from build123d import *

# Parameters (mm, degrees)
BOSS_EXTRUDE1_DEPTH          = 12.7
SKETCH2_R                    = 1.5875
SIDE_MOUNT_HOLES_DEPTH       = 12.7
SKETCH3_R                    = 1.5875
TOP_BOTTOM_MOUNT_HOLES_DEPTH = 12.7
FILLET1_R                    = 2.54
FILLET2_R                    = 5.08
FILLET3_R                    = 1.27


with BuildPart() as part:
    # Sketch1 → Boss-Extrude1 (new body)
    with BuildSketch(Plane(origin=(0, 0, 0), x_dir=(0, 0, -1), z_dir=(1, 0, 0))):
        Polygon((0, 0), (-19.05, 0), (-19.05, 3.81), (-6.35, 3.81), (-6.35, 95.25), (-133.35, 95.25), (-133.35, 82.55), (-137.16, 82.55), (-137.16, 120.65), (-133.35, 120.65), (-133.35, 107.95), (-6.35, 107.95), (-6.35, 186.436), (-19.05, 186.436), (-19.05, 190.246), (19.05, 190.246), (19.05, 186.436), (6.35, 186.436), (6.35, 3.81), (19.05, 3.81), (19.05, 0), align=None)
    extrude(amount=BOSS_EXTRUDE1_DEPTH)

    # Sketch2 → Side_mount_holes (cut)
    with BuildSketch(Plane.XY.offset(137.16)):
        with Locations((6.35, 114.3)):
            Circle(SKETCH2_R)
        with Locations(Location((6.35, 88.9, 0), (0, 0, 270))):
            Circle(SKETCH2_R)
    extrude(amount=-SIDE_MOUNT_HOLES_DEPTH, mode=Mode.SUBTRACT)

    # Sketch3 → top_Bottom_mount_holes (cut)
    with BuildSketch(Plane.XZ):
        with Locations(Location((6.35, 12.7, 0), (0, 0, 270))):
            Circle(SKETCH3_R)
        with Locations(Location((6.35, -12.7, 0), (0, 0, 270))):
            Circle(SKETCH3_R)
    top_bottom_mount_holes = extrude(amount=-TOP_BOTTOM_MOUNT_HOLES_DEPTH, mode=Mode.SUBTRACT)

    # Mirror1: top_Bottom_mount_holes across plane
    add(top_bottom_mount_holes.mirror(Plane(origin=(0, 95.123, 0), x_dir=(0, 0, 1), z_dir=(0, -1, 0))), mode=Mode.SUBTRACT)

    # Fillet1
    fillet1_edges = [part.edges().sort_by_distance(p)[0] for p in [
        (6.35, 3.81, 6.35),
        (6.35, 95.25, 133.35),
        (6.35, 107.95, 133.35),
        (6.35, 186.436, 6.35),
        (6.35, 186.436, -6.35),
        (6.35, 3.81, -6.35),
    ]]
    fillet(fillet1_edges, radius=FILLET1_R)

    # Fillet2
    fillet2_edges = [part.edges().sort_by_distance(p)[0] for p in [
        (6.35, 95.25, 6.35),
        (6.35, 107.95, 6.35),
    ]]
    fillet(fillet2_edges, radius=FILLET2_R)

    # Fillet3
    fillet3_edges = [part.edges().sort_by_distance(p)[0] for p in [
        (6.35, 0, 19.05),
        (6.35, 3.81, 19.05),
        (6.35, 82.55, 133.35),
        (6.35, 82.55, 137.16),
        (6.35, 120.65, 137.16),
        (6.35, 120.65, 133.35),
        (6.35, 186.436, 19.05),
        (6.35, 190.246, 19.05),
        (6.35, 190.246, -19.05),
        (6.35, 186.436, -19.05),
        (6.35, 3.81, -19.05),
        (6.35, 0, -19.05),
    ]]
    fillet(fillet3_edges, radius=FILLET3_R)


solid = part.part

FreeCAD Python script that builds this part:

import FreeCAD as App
import Part
import Sketcher
from FreeCAD import Vector
Q = App.Units.Quantity


def edges_at(feature, points):
    """Names of the edges that pass closest to the given points."""
    edges = feature.Shape.Edges
    near = lambda p: min(range(len(edges)), key=lambda i: edges[i].distToShape(Part.Vertex(*p))[0])
    return sorted({f"Edge{near(p) + 1}" for p in points})

doc = App.newDocument("Part")
body = doc.addObject("PartDesign::Body", "Body")

sketch1 = body.newObject("Sketcher::SketchObject", "Sketch")
sketch1.AttachmentSupport = (doc.getObject("YZ_Plane"), [""])
sketch1.MapMode = "FlatFace"
sketch1.addGeometry(Part.LineSegment(Vector(0, 19.05, 0), Vector(0, -19.05, 0)), False)
sketch1.addGeometry(Part.LineSegment(Vector(0, -19.05, 0), Vector(3.81, -19.05, 0)), False)
sketch1.addGeometry(Part.LineSegment(Vector(3.81, -19.05, 0), Vector(3.81, -6.35, 0)), False)
sketch1.addGeometry(Part.LineSegment(Vector(3.81, -6.35, 0), Vector(186.436, -6.35, 0)), False)
sketch1.addGeometry(Part.LineSegment(Vector(186.436, -6.35, 0), Vector(186.436, -19.05, 0)), False)
sketch1.addGeometry(Part.LineSegment(Vector(186.436, -19.05, 0), Vector(190.246, -19.05, 0)), False)
sketch1.addGeometry(Part.LineSegment(Vector(190.246, -19.05, 0), Vector(190.246, 19.05, 0)), False)
sketch1.addGeometry(Part.LineSegment(Vector(190.246, 19.05, 0), Vector(186.436, 19.05, 0)), False)
sketch1.addGeometry(Part.LineSegment(Vector(186.436, 19.05, 0), Vector(186.436, 6.35, 0)), False)
sketch1.addGeometry(Part.LineSegment(Vector(186.436, 6.35, 0), Vector(107.95, 6.35, 0)), False)
sketch1.addGeometry(Part.LineSegment(Vector(107.95, 6.35, 0), Vector(107.95, 133.35, 0)), False)
sketch1.addGeometry(Part.LineSegment(Vector(107.95, 133.35, 0), Vector(120.65, 133.35, 0)), False)
sketch1.addGeometry(Part.LineSegment(Vector(120.65, 133.35, 0), Vector(120.65, 137.16, 0)), False)
sketch1.addGeometry(Part.LineSegment(Vector(120.65, 137.16, 0), Vector(82.55, 137.16, 0)), False)
sketch1.addGeometry(Part.LineSegment(Vector(82.55, 137.16, 0), Vector(82.55, 133.35, 0)), False)
sketch1.addGeometry(Part.LineSegment(Vector(82.55, 133.35, 0), Vector(95.25, 133.35, 0)), False)
sketch1.addGeometry(Part.LineSegment(Vector(95.25, 133.35, 0), Vector(95.25, 6.35, 0)), False)
sketch1.addGeometry(Part.LineSegment(Vector(95.25, 6.35, 0), Vector(3.81, 6.35, 0)), False)
sketch1.addGeometry(Part.LineSegment(Vector(3.81, 6.35, 0), Vector(3.81, 19.05, 0)), False)
sketch1.addGeometry(Part.LineSegment(Vector(3.81, 19.05, 0), Vector(0, 19.05, 0)), False)
sketch1.addConstraint(Sketcher.Constraint("Coincident", 0, 2, 1, 1))
sketch1.addConstraint(Sketcher.Constraint("Coincident", 1, 2, 2, 1))
sketch1.addConstraint(Sketcher.Constraint("Coincident", 2, 2, 3, 1))
sketch1.addConstraint(Sketcher.Constraint("Coincident", 3, 2, 4, 1))
sketch1.addConstraint(Sketcher.Constraint("Coincident", 4, 2, 5, 1))
sketch1.addConstraint(Sketcher.Constraint("Coincident", 5, 2, 6, 1))
sketch1.addConstraint(Sketcher.Constraint("Coincident", 6, 2, 7, 1))
sketch1.addConstraint(Sketcher.Constraint("Coincident", 7, 2, 8, 1))
sketch1.addConstraint(Sketcher.Constraint("Coincident", 8, 2, 9, 1))
sketch1.addConstraint(Sketcher.Constraint("Coincident", 9, 2, 10, 1))
sketch1.addConstraint(Sketcher.Constraint("Coincident", 10, 2, 11, 1))
sketch1.addConstraint(Sketcher.Constraint("Coincident", 11, 2, 12, 1))
sketch1.addConstraint(Sketcher.Constraint("Coincident", 12, 2, 13, 1))
sketch1.addConstraint(Sketcher.Constraint("Coincident", 13, 2, 14, 1))
sketch1.addConstraint(Sketcher.Constraint("Coincident", 14, 2, 15, 1))
sketch1.addConstraint(Sketcher.Constraint("Coincident", 15, 2, 16, 1))
sketch1.addConstraint(Sketcher.Constraint("Coincident", 16, 2, 17, 1))
sketch1.addConstraint(Sketcher.Constraint("Coincident", 17, 2, 18, 1))
sketch1.addConstraint(Sketcher.Constraint("Coincident", 18, 2, 19, 1))
sketch1.addConstraint(Sketcher.Constraint("Coincident", 19, 2, 0, 1))
sketch1.addConstraint(Sketcher.Constraint("Vertical", 0))
sketch1.addConstraint(Sketcher.Constraint("Horizontal", 1))
sketch1.addConstraint(Sketcher.Constraint("Vertical", 2))
sketch1.addConstraint(Sketcher.Constraint("Horizontal", 3))
sketch1.addConstraint(Sketcher.Constraint("Vertical", 4))
sketch1.addConstraint(Sketcher.Constraint("Horizontal", 5))
sketch1.addConstraint(Sketcher.Constraint("Vertical", 6))
sketch1.addConstraint(Sketcher.Constraint("Horizontal", 7))
sketch1.addConstraint(Sketcher.Constraint("Vertical", 8))
sketch1.addConstraint(Sketcher.Constraint("Horizontal", 9))
sketch1.addConstraint(Sketcher.Constraint("Vertical", 10))
sketch1.addConstraint(Sketcher.Constraint("Horizontal", 11))
sketch1.addConstraint(Sketcher.Constraint("Vertical", 12))
sketch1.addConstraint(Sketcher.Constraint("Horizontal", 13))
sketch1.addConstraint(Sketcher.Constraint("Vertical", 14))
sketch1.addConstraint(Sketcher.Constraint("Horizontal", 15))
sketch1.addConstraint(Sketcher.Constraint("Vertical", 16))
sketch1.addConstraint(Sketcher.Constraint("Horizontal", 17))
sketch1.addConstraint(Sketcher.Constraint("Vertical", 18))
sketch1.addConstraint(Sketcher.Constraint("Horizontal", 19))
sketch1.addConstraint(Sketcher.Constraint("Symmetric", 0, 2, 19, 2, -1, 1))
sketch1.addConstraint(Sketcher.Constraint("Symmetric", 4, 2, 7, 2, -1))
sketch1.addConstraint(Sketcher.Constraint("Symmetric", 2, 2, 17, 2, -1))
sketch1.addConstraint(Sketcher.Constraint("Horizontal", 1, 2, 4, 2))
sketch1.addConstraint(Sketcher.Constraint("Horizontal", 11, 2, 14, 2))
sketch1.addConstraint(Sketcher.Constraint("Horizontal", 9, 2, 16, 2))
sketch1.addConstraint(Sketcher.Constraint("Equal", 1, 5))
sketch1.addConstraint(Sketcher.Constraint("Equal", 11, 15))
sketch1.addConstraint(Sketcher.Constraint("Equal", 13, 0))
sketch1.addConstraint(Sketcher.Constraint("Equal", 15, 2))
sketch1.addConstraint(Sketcher.Constraint("Equal", 19, 12))
sketch1.addConstraint(Sketcher.Constraint("DistanceY", 10, 1, 10, 2, Q("5 in")))
sketch1.addConstraint(Sketcher.Constraint("DistanceX", 11, 1, 11, 2, Q("0.5 in")))
sketch1.addConstraint(Sketcher.Constraint("DistanceX", 13, 2, 13, 1, Q("1.5 in")))
sketch1.addConstraint(Sketcher.Constraint("DistanceX", 17, 2, 17, 1, Q("3.6 in")))
sketch1.addConstraint(Sketcher.Constraint("DistanceX", 1, 1, 1, 2, Q("0.15 in")))
sketch1.addConstraint(Sketcher.Constraint("DistanceX", 3, 1, 3, 2, Q("7.19 in")))
pad1 = body.newObject("PartDesign::Pad", "Pad")
pad1.Profile = sketch1
pad1.Length = Q("0.5 in")

sketch2 = body.newObject("Sketcher::SketchObject", "Sketch001")
sketch2.AttachmentSupport = (doc.getObject("XY_Plane"), [""])
sketch2.MapMode = "FlatFace"
sketch2.AttachmentOffset = App.Placement(Vector(0, 0, 5.4 * 25.4), App.Rotation())
sketch2.addGeometry(Part.Circle(Vector(6.35, 114.3, 0), Vector(0, 0, 1), 1.5875), False)
sketch2.addGeometry(Part.Circle(Vector(6.35, 88.9, 0), Vector(0, 0, 1), 1.5875), False)
sketch2.addConstraint(Sketcher.Constraint("Equal", 0, 1))
sketch2.addConstraint(Sketcher.Constraint("Vertical", 0, 3, 1, 3))
sketch2.addConstraint(Sketcher.Constraint("Diameter", 0, Q("0.125 in")))
sketch2.addConstraint(Sketcher.Constraint("DistanceY", 1, 3, 0, 3, Q("1 in")))
sketch2.addConstraint(Sketcher.Constraint("DistanceY", -1, 1, 0, 3, Q("4.5 in")))
sketch2.addConstraint(Sketcher.Constraint("DistanceX", -1, 1, 0, 3, Q("0.25 in")))
pocket1 = body.newObject("PartDesign::Pocket", "Pocket")
pocket1.Profile = sketch2
pocket1.Length = Q("0.5 in")

sketch3 = body.newObject("Sketcher::SketchObject", "Sketch002")
sketch3.AttachmentSupport = (doc.getObject("XZ_Plane"), [""])
sketch3.MapMode = "FlatFace"
sketch3.addGeometry(Part.Circle(Vector(6.35, 12.7, 0), Vector(0, 0, 1), 1.5875), False)
sketch3.addGeometry(Part.Circle(Vector(6.35, -12.7, 0), Vector(0, 0, 1), 1.5875), False)
sketch3.addConstraint(Sketcher.Constraint("Equal", 0, 1))
sketch3.addConstraint(Sketcher.Constraint("Symmetric", 0, 3, 1, 3, -1))
sketch3.addConstraint(Sketcher.Constraint("Diameter", 0, Q("0.125 in")))
sketch3.addConstraint(Sketcher.Constraint("DistanceY", 1, 3, 0, 3, Q("1 in")))
sketch3.addConstraint(Sketcher.Constraint("DistanceX", -1, 1, 0, 3, Q("0.25 in")))
pocket2 = body.newObject("PartDesign::Pocket", "Pocket001")
pocket2.Profile = sketch3
pocket2.Length = Q("0.5 in")
doc.recompute()

datumplane = body.newObject("PartDesign::Plane", "DatumPlane")
datumplane.AttachmentSupport = (doc.getObject("XZ_Plane"), [""])
datumplane.MapMode = "FlatFace"
datumplane.AttachmentOffset = App.Placement(Vector(0, 0, -3.745 * 25.4), App.Rotation())
mirrored = body.newObject("PartDesign::Mirrored", "Mirrored")
mirrored.Originals = [pocket2]
mirrored.MirrorPlane = (datumplane, [""])
body.Tip = mirrored
doc.recompute()

fillet = body.newObject("PartDesign::Fillet", "Fillet")
fillet.Base = (mirrored, edges_at(mirrored, [
    (6.35, 3.81, 6.35),
    (6.35, 95.25, 133.35),
    (6.35, 107.95, 133.35),
    (6.35, 186.436, 6.35),
    (6.35, 186.436, -6.35),
    (6.35, 3.81, -6.35),
]))
fillet.Radius = Q("0.1 in")
doc.recompute()

fillet2 = body.newObject("PartDesign::Fillet", "Fillet001")
fillet2.Base = (fillet, edges_at(fillet, [(6.35, 95.25, 6.35), (6.35, 107.95, 6.35)]))
fillet2.Radius = Q("0.2 in")
doc.recompute()

fillet3 = body.newObject("PartDesign::Fillet", "Fillet002")
fillet3.Base = (fillet2, edges_at(fillet2, [
    (6.35, 0, 19.05),
    (6.35, 3.81, 19.05),
    (6.35, 82.55, 133.35),
    (6.35, 82.55, 137.16),
    (6.35, 120.65, 137.16),
    (6.35, 120.65, 133.35),
    (6.35, 186.436, 19.05),
    (6.35, 190.246, 19.05),
    (6.35, 190.246, -19.05),
    (6.35, 186.436, -19.05),
    (6.35, 3.81, -19.05),
    (6.35, 0, -19.05),
]))
fillet3.Radius = Q("0.05 in")

doc.recompute()
